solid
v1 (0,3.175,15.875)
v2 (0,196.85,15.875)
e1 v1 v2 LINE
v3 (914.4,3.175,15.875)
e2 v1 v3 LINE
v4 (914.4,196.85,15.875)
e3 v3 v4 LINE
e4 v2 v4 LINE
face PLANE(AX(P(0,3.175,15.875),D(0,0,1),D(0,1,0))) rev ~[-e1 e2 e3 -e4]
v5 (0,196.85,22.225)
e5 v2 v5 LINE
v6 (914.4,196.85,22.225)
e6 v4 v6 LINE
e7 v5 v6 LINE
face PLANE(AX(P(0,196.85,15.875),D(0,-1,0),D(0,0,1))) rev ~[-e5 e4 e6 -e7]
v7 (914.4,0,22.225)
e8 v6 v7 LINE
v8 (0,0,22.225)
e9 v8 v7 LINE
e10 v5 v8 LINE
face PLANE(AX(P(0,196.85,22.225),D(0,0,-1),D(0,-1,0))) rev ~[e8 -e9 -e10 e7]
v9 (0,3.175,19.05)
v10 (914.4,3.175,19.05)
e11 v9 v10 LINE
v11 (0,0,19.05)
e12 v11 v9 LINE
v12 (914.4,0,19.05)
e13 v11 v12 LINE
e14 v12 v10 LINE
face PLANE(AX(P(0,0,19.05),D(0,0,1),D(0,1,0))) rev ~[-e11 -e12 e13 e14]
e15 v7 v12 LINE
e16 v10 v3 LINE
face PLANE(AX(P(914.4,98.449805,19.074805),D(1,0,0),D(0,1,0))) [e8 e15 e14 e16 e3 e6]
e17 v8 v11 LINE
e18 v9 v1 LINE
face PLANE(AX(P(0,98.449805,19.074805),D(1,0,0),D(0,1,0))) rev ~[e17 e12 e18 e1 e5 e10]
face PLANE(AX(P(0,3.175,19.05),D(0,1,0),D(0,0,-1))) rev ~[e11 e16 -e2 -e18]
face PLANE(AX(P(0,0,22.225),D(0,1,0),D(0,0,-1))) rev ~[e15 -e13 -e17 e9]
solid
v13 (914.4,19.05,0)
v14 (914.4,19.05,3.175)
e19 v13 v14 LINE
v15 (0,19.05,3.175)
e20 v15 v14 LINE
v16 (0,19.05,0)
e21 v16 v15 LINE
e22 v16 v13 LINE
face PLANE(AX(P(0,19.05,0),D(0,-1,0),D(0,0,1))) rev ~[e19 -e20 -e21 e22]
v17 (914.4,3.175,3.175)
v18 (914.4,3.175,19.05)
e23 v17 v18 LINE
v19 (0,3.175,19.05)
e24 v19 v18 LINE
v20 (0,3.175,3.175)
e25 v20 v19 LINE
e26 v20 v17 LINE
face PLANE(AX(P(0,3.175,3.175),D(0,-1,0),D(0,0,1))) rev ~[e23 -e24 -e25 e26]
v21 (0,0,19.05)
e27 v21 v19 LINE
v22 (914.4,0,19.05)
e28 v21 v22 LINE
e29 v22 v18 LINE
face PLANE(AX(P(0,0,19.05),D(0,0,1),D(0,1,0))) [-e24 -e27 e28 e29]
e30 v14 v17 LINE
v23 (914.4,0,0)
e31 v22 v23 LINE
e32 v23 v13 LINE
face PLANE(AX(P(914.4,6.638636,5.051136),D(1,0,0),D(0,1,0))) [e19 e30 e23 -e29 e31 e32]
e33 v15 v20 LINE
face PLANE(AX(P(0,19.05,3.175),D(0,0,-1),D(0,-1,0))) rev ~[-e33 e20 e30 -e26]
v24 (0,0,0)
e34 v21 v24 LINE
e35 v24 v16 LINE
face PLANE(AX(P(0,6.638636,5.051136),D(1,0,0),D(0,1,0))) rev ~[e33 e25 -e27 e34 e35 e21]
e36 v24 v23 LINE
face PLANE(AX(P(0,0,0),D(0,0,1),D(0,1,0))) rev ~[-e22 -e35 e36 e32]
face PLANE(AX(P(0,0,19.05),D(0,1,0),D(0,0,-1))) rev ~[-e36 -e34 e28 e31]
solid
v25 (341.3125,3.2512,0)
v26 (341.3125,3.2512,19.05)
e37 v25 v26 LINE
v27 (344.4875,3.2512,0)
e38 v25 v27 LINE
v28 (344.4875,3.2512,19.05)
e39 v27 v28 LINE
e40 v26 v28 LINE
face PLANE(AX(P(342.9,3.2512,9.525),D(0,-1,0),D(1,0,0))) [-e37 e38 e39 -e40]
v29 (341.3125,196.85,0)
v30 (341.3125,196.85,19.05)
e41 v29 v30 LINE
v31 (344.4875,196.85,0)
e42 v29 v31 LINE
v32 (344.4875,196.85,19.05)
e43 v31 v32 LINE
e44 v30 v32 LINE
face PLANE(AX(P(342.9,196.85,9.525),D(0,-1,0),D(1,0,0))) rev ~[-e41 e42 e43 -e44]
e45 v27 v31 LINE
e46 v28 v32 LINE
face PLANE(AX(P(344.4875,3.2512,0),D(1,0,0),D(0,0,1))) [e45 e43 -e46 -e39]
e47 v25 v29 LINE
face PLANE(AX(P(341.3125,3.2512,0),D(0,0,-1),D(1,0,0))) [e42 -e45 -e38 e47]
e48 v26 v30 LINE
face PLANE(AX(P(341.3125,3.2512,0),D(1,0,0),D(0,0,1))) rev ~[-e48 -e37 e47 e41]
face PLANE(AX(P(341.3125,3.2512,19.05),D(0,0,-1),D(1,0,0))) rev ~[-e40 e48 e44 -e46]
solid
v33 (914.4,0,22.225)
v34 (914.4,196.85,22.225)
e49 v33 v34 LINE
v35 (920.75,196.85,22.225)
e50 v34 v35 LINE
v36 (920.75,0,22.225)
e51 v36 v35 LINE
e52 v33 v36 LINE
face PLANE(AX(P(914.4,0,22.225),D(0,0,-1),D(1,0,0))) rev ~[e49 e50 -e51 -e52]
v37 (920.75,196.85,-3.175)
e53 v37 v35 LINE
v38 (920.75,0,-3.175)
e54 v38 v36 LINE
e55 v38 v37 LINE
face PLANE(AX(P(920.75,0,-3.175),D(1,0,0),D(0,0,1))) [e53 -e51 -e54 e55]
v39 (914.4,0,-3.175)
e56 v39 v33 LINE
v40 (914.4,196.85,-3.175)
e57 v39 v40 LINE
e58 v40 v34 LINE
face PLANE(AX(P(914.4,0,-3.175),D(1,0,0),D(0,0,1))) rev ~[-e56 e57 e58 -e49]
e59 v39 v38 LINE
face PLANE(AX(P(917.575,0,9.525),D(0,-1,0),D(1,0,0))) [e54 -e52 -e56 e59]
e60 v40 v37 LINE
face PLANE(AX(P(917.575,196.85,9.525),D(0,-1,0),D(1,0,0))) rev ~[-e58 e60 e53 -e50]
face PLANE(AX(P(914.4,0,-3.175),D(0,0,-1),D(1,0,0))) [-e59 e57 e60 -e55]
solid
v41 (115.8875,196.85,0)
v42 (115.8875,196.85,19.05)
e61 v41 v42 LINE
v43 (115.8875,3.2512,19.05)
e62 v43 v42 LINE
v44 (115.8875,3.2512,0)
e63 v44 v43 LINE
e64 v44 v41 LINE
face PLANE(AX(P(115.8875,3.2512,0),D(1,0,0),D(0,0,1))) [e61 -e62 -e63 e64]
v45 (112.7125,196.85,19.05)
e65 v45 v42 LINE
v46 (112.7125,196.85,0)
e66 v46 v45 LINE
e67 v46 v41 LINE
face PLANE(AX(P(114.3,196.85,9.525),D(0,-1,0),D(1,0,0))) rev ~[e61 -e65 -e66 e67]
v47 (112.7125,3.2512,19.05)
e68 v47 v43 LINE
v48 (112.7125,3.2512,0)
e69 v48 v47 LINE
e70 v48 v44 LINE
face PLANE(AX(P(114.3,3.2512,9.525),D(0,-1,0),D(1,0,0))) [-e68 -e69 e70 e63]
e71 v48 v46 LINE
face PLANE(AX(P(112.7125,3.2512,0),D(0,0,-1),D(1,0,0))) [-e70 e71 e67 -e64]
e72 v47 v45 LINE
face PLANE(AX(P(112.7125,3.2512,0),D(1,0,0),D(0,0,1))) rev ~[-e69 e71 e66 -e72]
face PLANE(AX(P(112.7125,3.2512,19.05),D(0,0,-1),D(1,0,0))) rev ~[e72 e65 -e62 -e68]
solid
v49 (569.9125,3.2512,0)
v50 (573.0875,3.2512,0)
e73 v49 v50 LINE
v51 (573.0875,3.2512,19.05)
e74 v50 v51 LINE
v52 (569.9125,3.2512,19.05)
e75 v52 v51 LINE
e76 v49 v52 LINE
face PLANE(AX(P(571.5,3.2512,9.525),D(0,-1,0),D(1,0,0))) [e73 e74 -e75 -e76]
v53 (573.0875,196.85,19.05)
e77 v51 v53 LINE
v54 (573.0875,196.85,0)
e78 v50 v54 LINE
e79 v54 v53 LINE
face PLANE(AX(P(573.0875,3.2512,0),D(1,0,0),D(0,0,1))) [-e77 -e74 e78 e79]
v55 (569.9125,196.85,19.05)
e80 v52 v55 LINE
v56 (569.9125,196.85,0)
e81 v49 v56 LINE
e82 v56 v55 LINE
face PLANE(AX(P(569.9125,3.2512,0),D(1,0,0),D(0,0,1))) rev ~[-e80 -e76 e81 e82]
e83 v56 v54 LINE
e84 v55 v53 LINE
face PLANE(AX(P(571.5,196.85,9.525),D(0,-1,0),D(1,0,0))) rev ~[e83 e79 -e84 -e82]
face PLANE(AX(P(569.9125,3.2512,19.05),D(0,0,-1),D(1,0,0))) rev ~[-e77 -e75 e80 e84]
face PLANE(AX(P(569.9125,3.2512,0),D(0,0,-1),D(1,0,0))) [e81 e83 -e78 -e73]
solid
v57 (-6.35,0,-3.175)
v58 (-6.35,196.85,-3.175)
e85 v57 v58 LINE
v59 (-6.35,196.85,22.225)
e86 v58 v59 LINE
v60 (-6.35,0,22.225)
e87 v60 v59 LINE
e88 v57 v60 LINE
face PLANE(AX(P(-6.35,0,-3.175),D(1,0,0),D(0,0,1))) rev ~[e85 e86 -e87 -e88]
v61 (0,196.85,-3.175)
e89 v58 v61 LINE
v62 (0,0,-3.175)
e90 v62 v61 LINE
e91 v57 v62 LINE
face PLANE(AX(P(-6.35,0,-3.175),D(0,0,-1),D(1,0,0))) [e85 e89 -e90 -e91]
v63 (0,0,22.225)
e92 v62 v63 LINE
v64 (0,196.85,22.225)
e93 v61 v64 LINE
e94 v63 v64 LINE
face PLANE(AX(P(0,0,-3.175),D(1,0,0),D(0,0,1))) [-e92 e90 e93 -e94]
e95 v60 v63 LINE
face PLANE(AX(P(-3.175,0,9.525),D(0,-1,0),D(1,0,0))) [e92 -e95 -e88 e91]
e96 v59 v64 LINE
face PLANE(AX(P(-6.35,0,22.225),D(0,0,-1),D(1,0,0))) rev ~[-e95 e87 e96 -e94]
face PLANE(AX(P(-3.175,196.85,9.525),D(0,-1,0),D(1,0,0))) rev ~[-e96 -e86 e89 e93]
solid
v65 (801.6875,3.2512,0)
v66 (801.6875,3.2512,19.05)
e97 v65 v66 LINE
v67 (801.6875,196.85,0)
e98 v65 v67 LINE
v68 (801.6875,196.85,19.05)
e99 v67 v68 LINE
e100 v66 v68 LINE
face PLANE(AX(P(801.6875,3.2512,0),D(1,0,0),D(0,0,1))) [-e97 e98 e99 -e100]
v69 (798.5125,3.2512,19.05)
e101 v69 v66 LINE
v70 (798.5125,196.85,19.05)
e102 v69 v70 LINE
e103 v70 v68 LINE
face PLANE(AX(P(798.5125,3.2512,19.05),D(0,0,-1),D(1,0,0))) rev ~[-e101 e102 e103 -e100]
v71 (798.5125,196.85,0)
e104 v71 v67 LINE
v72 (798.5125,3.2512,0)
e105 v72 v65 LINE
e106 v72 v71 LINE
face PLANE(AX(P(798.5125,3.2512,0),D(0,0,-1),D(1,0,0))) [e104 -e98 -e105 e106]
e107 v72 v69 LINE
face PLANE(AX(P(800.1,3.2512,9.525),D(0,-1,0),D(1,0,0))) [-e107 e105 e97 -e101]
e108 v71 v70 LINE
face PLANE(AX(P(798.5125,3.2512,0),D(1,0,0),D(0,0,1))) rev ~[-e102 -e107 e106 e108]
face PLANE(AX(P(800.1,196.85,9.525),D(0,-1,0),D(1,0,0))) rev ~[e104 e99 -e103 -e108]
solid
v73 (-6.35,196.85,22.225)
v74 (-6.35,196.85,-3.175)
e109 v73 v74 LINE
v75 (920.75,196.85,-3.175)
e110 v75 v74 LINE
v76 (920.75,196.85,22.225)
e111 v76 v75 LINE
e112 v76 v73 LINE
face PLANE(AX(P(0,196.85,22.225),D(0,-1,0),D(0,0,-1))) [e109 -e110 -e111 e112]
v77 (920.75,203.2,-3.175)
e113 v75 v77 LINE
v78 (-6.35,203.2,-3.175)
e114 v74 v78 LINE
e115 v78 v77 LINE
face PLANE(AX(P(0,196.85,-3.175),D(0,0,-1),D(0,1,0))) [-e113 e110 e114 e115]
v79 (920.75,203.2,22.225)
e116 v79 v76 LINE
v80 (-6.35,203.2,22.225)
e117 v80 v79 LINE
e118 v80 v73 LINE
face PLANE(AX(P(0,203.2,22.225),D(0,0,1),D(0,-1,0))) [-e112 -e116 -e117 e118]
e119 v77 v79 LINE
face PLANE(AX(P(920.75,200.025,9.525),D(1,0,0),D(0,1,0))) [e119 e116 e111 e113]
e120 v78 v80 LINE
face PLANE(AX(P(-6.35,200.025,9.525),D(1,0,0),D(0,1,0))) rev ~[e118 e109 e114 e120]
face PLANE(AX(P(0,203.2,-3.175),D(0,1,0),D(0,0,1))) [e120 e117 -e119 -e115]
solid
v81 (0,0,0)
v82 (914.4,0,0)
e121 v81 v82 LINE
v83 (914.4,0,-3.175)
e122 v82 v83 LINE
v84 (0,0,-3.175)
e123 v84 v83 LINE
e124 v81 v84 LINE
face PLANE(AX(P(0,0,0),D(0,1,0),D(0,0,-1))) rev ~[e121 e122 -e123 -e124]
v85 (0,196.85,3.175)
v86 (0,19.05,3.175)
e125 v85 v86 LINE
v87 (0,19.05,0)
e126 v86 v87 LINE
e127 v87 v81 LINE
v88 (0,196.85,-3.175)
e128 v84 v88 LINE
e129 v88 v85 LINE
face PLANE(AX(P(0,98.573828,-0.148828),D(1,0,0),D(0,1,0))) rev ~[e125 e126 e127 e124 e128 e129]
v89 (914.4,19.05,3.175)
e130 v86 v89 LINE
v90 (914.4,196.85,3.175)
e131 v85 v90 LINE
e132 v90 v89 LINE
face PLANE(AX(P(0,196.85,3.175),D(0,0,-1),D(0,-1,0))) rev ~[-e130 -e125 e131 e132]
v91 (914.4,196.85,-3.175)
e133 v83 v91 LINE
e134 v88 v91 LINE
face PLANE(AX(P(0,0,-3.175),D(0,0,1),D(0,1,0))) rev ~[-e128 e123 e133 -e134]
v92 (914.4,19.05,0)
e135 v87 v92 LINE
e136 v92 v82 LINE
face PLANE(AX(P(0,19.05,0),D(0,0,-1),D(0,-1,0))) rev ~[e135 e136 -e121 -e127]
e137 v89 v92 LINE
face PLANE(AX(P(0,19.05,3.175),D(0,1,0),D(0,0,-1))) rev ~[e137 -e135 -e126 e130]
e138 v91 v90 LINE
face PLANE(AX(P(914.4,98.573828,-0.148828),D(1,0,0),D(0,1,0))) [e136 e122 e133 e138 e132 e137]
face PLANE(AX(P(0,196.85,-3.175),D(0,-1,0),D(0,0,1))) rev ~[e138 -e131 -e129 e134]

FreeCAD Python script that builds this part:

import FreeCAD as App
import Part
import Sketcher
Q = App.Units.Quantity


def add_polygon(sketch, points):
    """Adds a closed chain of lines whose ends are joined by coincident constraints."""
    first, n = sketch.GeometryCount, len(points)
    for a, b in zip(points, points[1:] + points[:1]):
        sketch.addGeometry(Part.LineSegment(App.Vector(*a, 0), App.Vector(*b, 0)), False)
    for i in range(n):
        sketch.addConstraint(Sketcher.Constraint("Coincident", first + i, 2, first + (i + 1) % n, 1))

doc = App.newDocument("Part")
body = doc.addObject("PartDesign::Body", "Body")

sketch1 = body.newObject("Sketcher::SketchObject", "Sketch")
sketch1.AttachmentSupport = (doc.getObject("YZ_Plane"), [""])
sketch1.MapMode = "FlatFace"
add_polygon(sketch1, [(0, 0), (19.05, 0), (19.05, 3.175), (3.175, 3.175), (3.175, 19.05), (0, 19.05)])
sketch1.addConstraint(Sketcher.Constraint("Horizontal", 0))
sketch1.addConstraint(Sketcher.Constraint("Vertical", 1))
sketch1.addConstraint(Sketcher.Constraint("Horizontal", 2))
sketch1.addConstraint(Sketcher.Constraint("Vertical", 3))
sketch1.addConstraint(Sketcher.Constraint("Horizontal", 4))
sketch1.addConstraint(Sketcher.Constraint("Vertical", 5))
sketch1.addConstraint(Sketcher.Constraint("Coincident", 5, 2, -1, 1))
sketch1.addConstraint(Sketcher.Constraint("Equal", 4, 1))
sketch1.addConstraint(Sketcher.Constraint("Equal", 2, 3))
sketch1.addConstraint(Sketcher.Constraint("DistanceX", 0, 1, 0, 2, Q("0.75 in")))
sketch1.addConstraint(Sketcher.Constraint("DistanceX", 2, 2, 2, 1, Q("0.625 in")))
pad1 = body.newObject("PartDesign::Pad", "Pad")
pad1.Profile = sketch1
pad1.Length = Q("36 in")
body2 = doc.addObject("PartDesign::Body", "Body001")
body2.AllowCompound = True

sketch2 = body2.newObject("Sketcher::SketchObject", "Sketch001")
sketch2.AttachmentSupport = (doc.getObject("YZ_Plane001"), [""])
sketch2.MapMode = "FlatFace"
add_polygon(sketch2, [(0, 22.225), (0, 19.05), (3.175, 19.05), (3.175, 15.875), (196.85, 15.875), (196.85, 22.225)])
add_polygon(sketch2, [(19.05, 0), (0, 0), (0, -3.175), (196.85, -3.175), (196.85, 3.175), (19.05, 3.175)])
sketch2.addConstraint(Sketcher.Constraint("Vertical", 0))
sketch2.addConstraint(Sketcher.Constraint("Horizontal", 1))
sketch2.addConstraint(Sketcher.Constraint("Vertical", 2))
sketch2.addConstraint(Sketcher.Constraint("Horizontal", 3))
sketch2.addConstraint(Sketcher.Constraint("Vertical", 4))
sketch2.addConstraint(Sketcher.Constraint("Horizontal", 5))
sketch2.addConstraint(Sketcher.Constraint("Horizontal", 6))
sketch2.addConstraint(Sketcher.Constraint("Vertical", 7))
sketch2.addConstraint(Sketcher.Constraint("Horizontal", 8))
sketch2.addConstraint(Sketcher.Constraint("Vertical", 9))
sketch2.addConstraint(Sketcher.Constraint("Horizontal", 10))
sketch2.addConstraint(Sketcher.Constraint("Vertical", 11))
sketch2.addConstraint(Sketcher.Constraint("Coincident", 6, 2, -1, 1))
sketch2.addConstraint(Sketcher.Constraint("PointOnObject", 0, 2, -2))
sketch2.addConstraint(Sketcher.Constraint("Vertical", 4, 2, 8, 2))
sketch2.addConstraint(Sketcher.Constraint("Equal", 1, 0))
sketch2.addConstraint(Sketcher.Constraint("Equal", 0, 2))
sketch2.addConstraint(Sketcher.Constraint("Equal", 2, 7))
sketch2.addConstraint(Sketcher.Constraint("Equal", 4, 9))
sketch2.addConstraint(Sketcher.Constraint("DistanceX", 10, 2, 10, 1, Q("7 in")))
sketch2.addConstraint(Sketcher.Constraint("DistanceY", 7, 2, 5, 2, Q("1 in")))
sketch2.addConstraint(Sketcher.Constraint("DistanceX", 5, 2, 5, 1, Q("7.75 in")))
sketch2.addConstraint(Sketcher.Constraint("DistanceY", 4, 1, 4, 2, Q("0.25 in")))
pad2 = body2.newObject("PartDesign::Pad", "Pad001")
pad2.Profile = sketch2
pad2.Length = Q("36 in")
body3 = doc.addObject("PartDesign::Body", "Body002")

sketch3 = body3.newObject("Sketcher::SketchObject", "Sketch002")
sketch3.AttachmentSupport = (doc.getObject("YZ_Plane002"), [""])
sketch3.MapMode = "FlatFace"
add_polygon(sketch3, [(196.85, -3.175), (203.2, -3.175), (203.2, 22.225), (196.85, 22.225)])
sketch3.addConstraint(Sketcher.Constraint("Horizontal", 0))
sketch3.addConstraint(Sketcher.Constraint("Vertical", 1))
sketch3.addConstraint(Sketcher.Constraint("Horizontal", 2))
sketch3.addConstraint(Sketcher.Constraint("Vertical", 3))
sketch3.addConstraint(Sketcher.Constraint("DistanceY", 1, 1, 1, 2, Q("1 in")))
sketch3.addConstraint(Sketcher.Constraint("DistanceX", -1, 1, 0, 2, Q("8 in")))
sketch3.addConstraint(Sketcher.Constraint("DistanceX", 0, 1, 0, 2, Q("0.25 in")))
sketch3.addConstraint(Sketcher.Constraint("DistanceY", 0, 2, -1, 1, Q("0.125 in")))
pad3 = body3.newObject("PartDesign::Pad", "Pad002")
pad3.Profile = sketch3
pad3.Type = "TwoLengths"
pad3.Length = Q("36.25 in")
pad3.Length2 = Q("0.25 in")
body4 = doc.addObject("PartDesign::Body", "Body003")
body4.AllowCompound = True

sketch4 = body4.newObject("Sketcher::SketchObject", "Sketch003")
sketch4.AttachmentSupport = (doc.getObject("XZ_Plane003"), [""])
sketch4.MapMode = "FlatFace"
add_polygon(sketch4, [(914.4, 22.225), (914.4, -3.175), (920.75, -3.175), (920.75, 22.225)])
add_polygon(sketch4, [(-6.35, 22.225), (-6.35, -3.175), (0, -3.175), (0, 22.225)])
sketch4.addConstraint(Sketcher.Constraint("Vertical", 0))
sketch4.addConstraint(Sketcher.Constraint("Horizontal", 1))
sketch4.addConstraint(Sketcher.Constraint("Vertical", 2))
sketch4.addConstraint(Sketcher.Constraint("Horizontal", 3))
sketch4.addConstraint(Sketcher.Constraint("Vertical", 4))
sketch4.addConstraint(Sketcher.Constraint("Horizontal", 5))
sketch4.addConstraint(Sketcher.Constraint("Vertical", 6))
sketch4.addConstraint(Sketcher.Constraint("Horizontal", 7))
sketch4.addConstraint(Sketcher.Constraint("PointOnObject", 5, 2, -2))
sketch4.addConstraint(Sketcher.Constraint("Horizontal", 1, 2, 4, 2))
sketch4.addConstraint(Sketcher.Constraint("Horizontal", 3, 2, 6, 2))
sketch4.addConstraint(Sketcher.Constraint("Equal", 3, 5))
sketch4.addConstraint(Sketcher.Constraint("DistanceY", 0, 2, 0, 1, Q("1 in")))
sketch4.addConstraint(Sketcher.Constraint("DistanceX", -1, 1, 0, 2, Q("36 in")))
sketch4.addConstraint(Sketcher.Constraint("DistanceX", 1, 1, 1, 2, Q("0.25 in")))
sketch4.addConstraint(Sketcher.Constraint("DistanceY", 0, 2, -1, 1, Q("0.125 in")))
pad4 = body4.newObject("PartDesign::Pad", "Pad003")
pad4.Profile = sketch4
pad4.Length = Q("7.75 in")
pad4.Reversed = True
body5 = doc.addObject("PartDesign::Body", "Body004")
body5.AllowCompound = True

sketch5 = body5.newObject("Sketcher::SketchObject", "Sketch004")
sketch5.AttachmentSupport = (doc.getObject("XZ_Plane004"), [""])
sketch5.MapMode = "FlatFace"
sketch5.AttachmentOffset = App.Placement(App.Vector(0, 0, -0.128 * 25.4), App.Rotation())
add_polygon(sketch5, [(112.7125, 19.05), (112.7125, 0), (115.8875, 0), (115.8875, 19.05)])
add_polygon(sketch5, [(341.3125, 19.05), (341.3125, 0), (344.4875, 0), (344.4875, 19.05)])
add_polygon(sketch5, [(569.9125, 19.05), (569.9125, 0), (573.0875, 0), (573.0875, 19.05)])
add_polygon(sketch5, [(798.5125, 19.05), (798.5125, 0), (801.6875, 0), (801.6875, 19.05)])
sketch5.addConstraint(Sketcher.Constraint("Vertical", 0))
sketch5.addConstraint(Sketcher.Constraint("Horizontal", 1))
sketch5.addConstraint(Sketcher.Constraint("Vertical", 2))
sketch5.addConstraint(Sketcher.Constraint("Horizontal", 3))
sketch5.addConstraint(Sketcher.Constraint("Vertical", 4))
sketch5.addConstraint(Sketcher.Constraint("Horizontal", 5))
sketch5.addConstraint(Sketcher.Constraint("Vertical", 6))
sketch5.addConstraint(Sketcher.Constraint("Horizontal", 7))
sketch5.addConstraint(Sketcher.Constraint("Vertical", 8))
sketch5.addConstraint(Sketcher.Constraint("Horizontal", 9))
sketch5.addConstraint(Sketcher.Constraint("Vertical", 10))
sketch5.addConstraint(Sketcher.Constraint("Horizontal", 11))
sketch5.addConstraint(Sketcher.Constraint("Vertical", 12))
sketch5.addConstraint(Sketcher.Constraint("Horizontal", 13))
sketch5.addConstraint(Sketcher.Constraint("Vertical", 14))
sketch5.addConstraint(Sketcher.Constraint("Horizontal", 15))
sketch5.addConstraint(Sketcher.Constraint("PointOnObject", 0, 2, -1))
sketch5.addConstraint(Sketcher.Constraint("PointOnObject", 4, 2, -1))
sketch5.addConstraint(Sketcher.Constraint("PointOnObject", 8, 2, -1))
sketch5.addConstraint(Sketcher.Constraint("PointOnObject", 12, 2, -1))
sketch5.addConstraint(Sketcher.Constraint("Horizontal", 3, 2, 6, 2))
sketch5.addConstraint(Sketcher.Constraint("Horizontal", 7, 2, 10, 2))
sketch5.addConstraint(Sketcher.Constraint("Horizontal", 11, 2, 14, 2))
sketch5.addConstraint(Sketcher.Constraint("Equal", 3, 5))
sketch5.addConstraint(Sketcher.Constraint("Equal", 7, 9))
sketch5.addConstraint(Sketcher.Constraint("Equal", 11, 13))
sketch5.addConstraint(Sketcher.Constraint("DistanceX", 0, 2, 4, 2, Q("9 in")))
sketch5.addConstraint(Sketcher.Constraint("DistanceX", 4, 2, 8, 2, Q("9 in")))
sketch5.addConstraint(Sketcher.Constraint("DistanceX", 8, 2, 12, 2, Q("9 in")))
sketch5.addConstraint(Sketcher.Constraint("DistanceY", 0, 2, 0, 1, Q("0.75 in")))
sketch5.addConstraint(Sketcher.Constraint("DistanceX", 1, 1, 1, 2, Q("0.125 in")))
sketch5.addConstraint(Sketcher.Constraint("DistanceX", -1, 1, 0, 2, Q("4.4375 in")))
pad5 = body5.newObject("PartDesign::Pad", "Pad004")
pad5.Profile = sketch5
pad5.Length = Q("7.622 in")
pad5.Reversed = True

doc.recompute()
